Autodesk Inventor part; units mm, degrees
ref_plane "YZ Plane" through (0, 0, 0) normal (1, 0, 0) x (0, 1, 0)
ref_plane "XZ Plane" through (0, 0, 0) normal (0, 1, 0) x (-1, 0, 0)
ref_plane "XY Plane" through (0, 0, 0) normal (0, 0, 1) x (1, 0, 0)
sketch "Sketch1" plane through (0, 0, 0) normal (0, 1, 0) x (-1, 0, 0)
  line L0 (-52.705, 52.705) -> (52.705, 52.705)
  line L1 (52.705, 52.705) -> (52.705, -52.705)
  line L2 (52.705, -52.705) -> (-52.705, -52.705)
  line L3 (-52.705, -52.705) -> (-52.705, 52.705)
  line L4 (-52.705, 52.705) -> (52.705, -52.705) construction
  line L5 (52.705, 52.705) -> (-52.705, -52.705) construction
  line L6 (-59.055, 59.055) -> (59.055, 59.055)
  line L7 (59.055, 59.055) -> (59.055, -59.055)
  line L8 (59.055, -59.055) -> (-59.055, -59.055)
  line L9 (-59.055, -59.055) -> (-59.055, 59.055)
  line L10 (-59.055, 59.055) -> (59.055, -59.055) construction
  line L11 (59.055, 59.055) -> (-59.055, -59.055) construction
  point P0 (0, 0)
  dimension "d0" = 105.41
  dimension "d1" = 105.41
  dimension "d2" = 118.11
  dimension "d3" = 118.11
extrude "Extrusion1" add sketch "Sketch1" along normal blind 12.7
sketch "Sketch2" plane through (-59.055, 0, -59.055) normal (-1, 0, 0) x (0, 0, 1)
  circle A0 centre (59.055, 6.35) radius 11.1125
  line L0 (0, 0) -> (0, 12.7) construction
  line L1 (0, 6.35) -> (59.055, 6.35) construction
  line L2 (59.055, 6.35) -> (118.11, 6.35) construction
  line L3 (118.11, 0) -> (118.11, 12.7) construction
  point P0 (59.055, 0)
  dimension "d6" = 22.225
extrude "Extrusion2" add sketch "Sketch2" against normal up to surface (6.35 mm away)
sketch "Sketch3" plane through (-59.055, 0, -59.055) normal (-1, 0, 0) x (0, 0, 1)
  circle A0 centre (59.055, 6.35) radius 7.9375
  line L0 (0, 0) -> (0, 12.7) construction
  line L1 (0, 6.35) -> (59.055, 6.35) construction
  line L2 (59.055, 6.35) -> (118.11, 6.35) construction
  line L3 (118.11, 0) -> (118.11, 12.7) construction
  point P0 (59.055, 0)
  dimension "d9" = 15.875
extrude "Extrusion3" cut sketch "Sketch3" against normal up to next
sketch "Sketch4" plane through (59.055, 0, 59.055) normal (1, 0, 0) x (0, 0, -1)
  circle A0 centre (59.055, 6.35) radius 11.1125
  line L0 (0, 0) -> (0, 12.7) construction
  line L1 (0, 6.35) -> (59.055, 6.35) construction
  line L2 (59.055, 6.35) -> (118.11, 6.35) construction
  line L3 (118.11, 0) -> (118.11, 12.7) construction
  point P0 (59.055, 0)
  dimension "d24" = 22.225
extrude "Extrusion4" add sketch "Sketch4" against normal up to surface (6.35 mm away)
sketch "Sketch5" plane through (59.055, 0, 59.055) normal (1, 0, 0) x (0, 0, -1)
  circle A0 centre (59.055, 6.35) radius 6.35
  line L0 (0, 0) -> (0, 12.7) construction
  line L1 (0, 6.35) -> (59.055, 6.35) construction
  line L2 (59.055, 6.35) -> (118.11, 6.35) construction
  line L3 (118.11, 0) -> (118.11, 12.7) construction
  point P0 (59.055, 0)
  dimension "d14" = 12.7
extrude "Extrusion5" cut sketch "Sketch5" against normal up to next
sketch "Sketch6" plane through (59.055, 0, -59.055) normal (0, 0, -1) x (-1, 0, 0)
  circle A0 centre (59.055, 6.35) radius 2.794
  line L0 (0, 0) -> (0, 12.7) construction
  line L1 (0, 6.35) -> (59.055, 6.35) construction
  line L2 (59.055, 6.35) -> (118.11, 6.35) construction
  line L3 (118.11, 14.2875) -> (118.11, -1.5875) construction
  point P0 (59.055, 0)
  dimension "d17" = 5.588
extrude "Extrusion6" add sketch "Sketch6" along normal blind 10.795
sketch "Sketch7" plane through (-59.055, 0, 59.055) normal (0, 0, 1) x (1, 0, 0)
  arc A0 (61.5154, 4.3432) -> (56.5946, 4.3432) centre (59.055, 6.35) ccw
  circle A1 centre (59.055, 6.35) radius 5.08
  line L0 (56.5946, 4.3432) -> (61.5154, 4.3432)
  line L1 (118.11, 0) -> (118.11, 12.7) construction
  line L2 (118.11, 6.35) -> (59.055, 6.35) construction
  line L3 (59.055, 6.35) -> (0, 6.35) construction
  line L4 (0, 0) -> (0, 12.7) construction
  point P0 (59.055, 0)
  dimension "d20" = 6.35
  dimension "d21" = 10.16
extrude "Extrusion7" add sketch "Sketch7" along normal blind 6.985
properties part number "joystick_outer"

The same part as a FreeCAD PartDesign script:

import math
import FreeCAD as App
import Part
import Sketcher

V = App.Vector
Q = App.Units.Quantity

doc = App.newDocument("Part")
params = doc.addObject("Spreadsheet::Sheet", "Params")
for row, (alias, value) in enumerate([
    ("sketch1_width", "4.65 in"),
    ("sketch1_width2", "4.15 in"),
    ("pad1_length", "0.5 in"),
    ("sketch2_diameter", "0.875 in"),
    ("pad2_length", "0.25 in"),
    ("sketch3_diameter", "0.625 in"),
    ("sketch4_diameter", "0.875 in"),
    ("pad3_length", "0.25 in"),
    ("sketch5_diameter", "0.5 in"),
    ("sketch6_diameter", "0.22 in"),
    ("pad4_length", "0.425 in"),
    ("sketch7_diameter", "0.4 in"),
    ("sketch7_radius", "0.125 in"),
    ("pad5_length", "0.275 in"),
], start=1):
    params.set(f"A{row}", alias)
    params.set(f"B{row}", "=" + value)
    params.setAlias(f"B{row}", alias)

body = doc.addObject("PartDesign::Body", "Body")

# Sketch on XZ plane
sketch1 = body.newObject("Sketcher::SketchObject", "Sketch")
sketch1.AttachmentSupport = (doc.getObject("XZ_Plane"), [""])
sketch1.MapMode = "FlatFace"
sketch1.addGeometry(Part.LineSegment(V(-59, 59, 0), V(59, 59, 0)), False)
sketch1.addGeometry(Part.LineSegment(V(59, 59, 0), V(59, -59, 0)), False)
sketch1.addGeometry(Part.LineSegment(V(59, -59, 0), V(-59, -59, 0)), False)
sketch1.addGeometry(Part.LineSegment(V(-59, -59, 0), V(-59, 59, 0)), False)
sketch1.addGeometry(Part.LineSegment(V(53, -53, 0), V(53, 53, 0)), False)
sketch1.addGeometry(Part.LineSegment(V(53, 53, 0), V(-53, 53, 0)), False)
sketch1.addGeometry(Part.LineSegment(V(-53, 53, 0), V(-53, -53, 0)), False)
sketch1.addGeometry(Part.LineSegment(V(-53, -53, 0), V(53, -53, 0)), False)
sketch1.addConstraint(Sketcher.Constraint("Coincident", 0, 2, 1, 1))
sketch1.addConstraint(Sketcher.Constraint("Coincident", 1, 2, 2, 1))
sketch1.addConstraint(Sketcher.Constraint("Coincident", 2, 2, 3, 1))
sketch1.addConstraint(Sketcher.Constraint("Coincident", 3, 2, 0, 1))
sketch1.addConstraint(Sketcher.Constraint("Coincident", 4, 2, 5, 1))
sketch1.addConstraint(Sketcher.Constraint("Coincident", 5, 2, 6, 1))
sketch1.addConstraint(Sketcher.Constraint("Coincident", 6, 2, 7, 1))
sketch1.addConstraint(Sketcher.Constraint("Coincident", 7, 2, 4, 1))
sketch1.addConstraint(Sketcher.Constraint("Horizontal", 0))
sketch1.addConstraint(Sketcher.Constraint("Vertical", 1))
sketch1.addConstraint(Sketcher.Constraint("Horizontal", 2))
sketch1.addConstraint(Sketcher.Constraint("Vertical", 3))
sketch1.addConstraint(Sketcher.Constraint("Vertical", 4))
sketch1.addConstraint(Sketcher.Constraint("Horizontal", 5))
sketch1.addConstraint(Sketcher.Constraint("Vertical", 6))
sketch1.addConstraint(Sketcher.Constraint("Horizontal", 7))
sketch1.addConstraint(Sketcher.Constraint("Symmetric", 0, 2, 2, 2, -1, 1))
sketch1.addConstraint(Sketcher.Constraint("Symmetric", 4, 2, 6, 2, -1, 1))
sketch1.addConstraint(Sketcher.Constraint("Equal", 2, 1))
sketch1.addConstraint(Sketcher.Constraint("Equal", 7, 4))
sketch1.addConstraint(Sketcher.Constraint("DistanceX", 0, 1, 0, 2, Q("4.65 in")))
sketch1.addConstraint(Sketcher.Constraint("DistanceX", 5, 2, 5, 1, Q("4.15 in")))
sketch1.setExpression("Constraints[20]", "Params.sketch1_width")
sketch1.setExpression("Constraints[21]", "Params.sketch1_width2")
pad1 = body.newObject("PartDesign::Pad", "Pad")
pad1.Profile = sketch1
pad1.setExpression("Length", "Params.pad1_length")
pad1.Reversed = True

# Sketch on YZ plane
sketch2 = body.newObject("Sketcher::SketchObject", "Sketch001")
sketch2.AttachmentSupport = (doc.getObject("YZ_Plane"), [""])
sketch2.MapMode = "FlatFace"
sketch2.AttachmentOffset = App.Placement(V(0, 0, -2.325 * 25.4), App.Rotation())
sketch2.addGeometry(Part.Circle(V(6, 0, 0), V(0, 0, 1), 11), False)
sketch2.addConstraint(Sketcher.Constraint("PointOnObject", 0, 3, -1))
sketch2.addConstraint(Sketcher.Constraint("Diameter", 0, Q("0.875 in")))
sketch2.addConstraint(Sketcher.Constraint("DistanceX", -1, 1, 0, 3, Q("0.25 in")))
sketch2.setExpression("Constraints[1]", "Params.sketch2_diameter")
pad2 = body.newObject("PartDesign::Pad", "Pad001")
pad2.Profile = sketch2
pad2.setExpression("Length", "Params.pad2_length")

# Sketch on YZ plane
sketch3 = body.newObject("Sketcher::SketchObject", "Sketch002")
sketch3.AttachmentSupport = (doc.getObject("YZ_Plane"), [""])
sketch3.MapMode = "FlatFace"
sketch3.AttachmentOffset = App.Placement(V(0, 0, -2.325 * 25.4), App.Rotation())
sketch3.addGeometry(Part.Circle(V(6, 0, 0), V(0, 0, 1), 8), False)
sketch3.addConstraint(Sketcher.Constraint("PointOnObject", 0, 3, -1))
sketch3.addConstraint(Sketcher.Constraint("Diameter", 0, Q("0.625 in")))
sketch3.addConstraint(Sketcher.Constraint("DistanceX", -1, 1, 0, 3, Q("0.25 in")))
sketch3.setExpression("Constraints[1]", "Params.sketch3_diameter")
pocket1 = body.newObject("PartDesign::Pocket", "Pocket")
pocket1.Profile = sketch3
pocket1.Type = "UpToFirst"
pocket1.Reversed = True

# Sketch on YZ plane
sketch4 = body.newObject("Sketcher::SketchObject", "Sketch003")
sketch4.AttachmentSupport = (doc.getObject("YZ_Plane"), [""])
sketch4.MapMode = "FlatFace"
sketch4.AttachmentOffset = App.Placement(V(0, 0, 2.325 * 25.4), App.Rotation())
sketch4.addGeometry(Part.Circle(V(6, 0, 0), V(0, 0, 1), 11), False)
sketch4.addConstraint(Sketcher.Constraint("PointOnObject", 0, 3, -1))
sketch4.addConstraint(Sketcher.Constraint("Diameter", 0, Q("0.875 in")))
sketch4.addConstraint(Sketcher.Constraint("DistanceX", -1, 1, 0, 3, Q("0.25 in")))
sketch4.setExpression("Constraints[1]", "Params.sketch4_diameter")
pad3 = body.newObject("PartDesign::Pad", "Pad002")
pad3.Profile = sketch4
pad3.setExpression("Length", "Params.pad3_length")
pad3.Reversed = True

# Sketch on YZ plane
sketch5 = body.newObject("Sketcher::SketchObject", "Sketch004")
sketch5.AttachmentSupport = (doc.getObject("YZ_Plane"), [""])
sketch5.MapMode = "FlatFace"
sketch5.AttachmentOffset = App.Placement(V(0, 0, 2.325 * 25.4), App.Rotation())
sketch5.addGeometry(Part.Circle(V(6, 0, 0), V(0, 0, 1), 6), False)
sketch5.addConstraint(Sketcher.Constraint("PointOnObject", 0, 3, -1))
sketch5.addConstraint(Sketcher.Constraint("Diameter", 0, Q("0.5 in")))
sketch5.addConstraint(Sketcher.Constraint("DistanceX", -1, 1, 0, 3, Q("0.25 in")))
sketch5.setExpression("Constraints[1]", "Params.sketch5_diameter")
pocket2 = body.newObject("PartDesign::Pocket", "Pocket001")
pocket2.Profile = sketch5
pocket2.Type = "UpToFirst"

# Sketch on XY plane
sketch6 = body.newObject("Sketcher::SketchObject", "Sketch005")
sketch6.AttachmentSupport = (doc.getObject("XY_Plane"), [""])
sketch6.MapMode = "FlatFace"
sketch6.AttachmentOffset = App.Placement(V(0, 0, -2.325 * 25.4), App.Rotation())
sketch6.addGeometry(Part.Circle(V(0, 6.3, 0), V(0, 0, 1), 2.8), False)
sketch6.addConstraint(Sketcher.Constraint("PointOnObject", 0, 3, -2))
sketch6.addConstraint(Sketcher.Constraint("Diameter", 0, Q("0.22 in")))
sketch6.addConstraint(Sketcher.Constraint("DistanceY", -1, 1, 0, 3, Q("0.25 in")))
sketch6.setExpression("Constraints[1]", "Params.sketch6_diameter")
pad4 = body.newObject("PartDesign::Pad", "Pad003")
pad4.Profile = sketch6
pad4.setExpression("Length", "Params.pad4_length")
pad4.Reversed = True

# Sketch on XY plane
sketch7 = body.newObject("Sketcher::SketchObject", "Sketch006")
sketch7.AttachmentSupport = (doc.getObject("XY_Plane"), [""])
sketch7.MapMode = "FlatFace"
sketch7.AttachmentOffset = App.Placement(V(0, 0, 2.325 * 25.4), App.Rotation())
sketch7.addGeometry(Part.Circle(V(0, 6.3, 0), V(0, 0, 1), 5.1), False)
sketch7.addGeometry(Part.ArcOfCircle(Part.Circle(V(0, 6.3, 0), V(0, 0, 1), 3.2), math.radians(-39), math.radians(219)), False)
sketch7.addGeometry(Part.LineSegment(V(2.5, 4.3, 0), V(-2.5, 4.3, 0)), False)
sketch7.addConstraint(Sketcher.Constraint("Coincident", 1, 1, 2, 1))
sketch7.addConstraint(Sketcher.Constraint("Coincident", 2, 2, 1, 2))
sketch7.addConstraint(Sketcher.Constraint("Horizontal", 2))
sketch7.addConstraint(Sketcher.Constraint("Coincident", 1, 3, 0, 3))
sketch7.addConstraint(Sketcher.Constraint("PointOnObject", 0, 3, -2))
sketch7.addConstraint(Sketcher.Constraint("Diameter", 0, Q("0.4 in")))
sketch7.addConstraint(Sketcher.Constraint("Radius", 1, Q("0.125 in")))
sketch7.addConstraint(Sketcher.Constraint("DistanceY", -1, 1, 0, 3, Q("0.25 in")))
sketch7.addConstraint(Sketcher.Constraint("DistanceY", -1, 1, 1, 1, Q("0.171 in")))
sketch7.setExpression("Constraints[5]", "Params.sketch7_diameter")
sketch7.setExpression("Constraints[6]", "Params.sketch7_radius")
pad5 = body.newObject("PartDesign::Pad", "Pad004")
pad5.Profile = sketch7
pad5.setExpression("Length", "Params.pad5_length")

doc.recompute()
